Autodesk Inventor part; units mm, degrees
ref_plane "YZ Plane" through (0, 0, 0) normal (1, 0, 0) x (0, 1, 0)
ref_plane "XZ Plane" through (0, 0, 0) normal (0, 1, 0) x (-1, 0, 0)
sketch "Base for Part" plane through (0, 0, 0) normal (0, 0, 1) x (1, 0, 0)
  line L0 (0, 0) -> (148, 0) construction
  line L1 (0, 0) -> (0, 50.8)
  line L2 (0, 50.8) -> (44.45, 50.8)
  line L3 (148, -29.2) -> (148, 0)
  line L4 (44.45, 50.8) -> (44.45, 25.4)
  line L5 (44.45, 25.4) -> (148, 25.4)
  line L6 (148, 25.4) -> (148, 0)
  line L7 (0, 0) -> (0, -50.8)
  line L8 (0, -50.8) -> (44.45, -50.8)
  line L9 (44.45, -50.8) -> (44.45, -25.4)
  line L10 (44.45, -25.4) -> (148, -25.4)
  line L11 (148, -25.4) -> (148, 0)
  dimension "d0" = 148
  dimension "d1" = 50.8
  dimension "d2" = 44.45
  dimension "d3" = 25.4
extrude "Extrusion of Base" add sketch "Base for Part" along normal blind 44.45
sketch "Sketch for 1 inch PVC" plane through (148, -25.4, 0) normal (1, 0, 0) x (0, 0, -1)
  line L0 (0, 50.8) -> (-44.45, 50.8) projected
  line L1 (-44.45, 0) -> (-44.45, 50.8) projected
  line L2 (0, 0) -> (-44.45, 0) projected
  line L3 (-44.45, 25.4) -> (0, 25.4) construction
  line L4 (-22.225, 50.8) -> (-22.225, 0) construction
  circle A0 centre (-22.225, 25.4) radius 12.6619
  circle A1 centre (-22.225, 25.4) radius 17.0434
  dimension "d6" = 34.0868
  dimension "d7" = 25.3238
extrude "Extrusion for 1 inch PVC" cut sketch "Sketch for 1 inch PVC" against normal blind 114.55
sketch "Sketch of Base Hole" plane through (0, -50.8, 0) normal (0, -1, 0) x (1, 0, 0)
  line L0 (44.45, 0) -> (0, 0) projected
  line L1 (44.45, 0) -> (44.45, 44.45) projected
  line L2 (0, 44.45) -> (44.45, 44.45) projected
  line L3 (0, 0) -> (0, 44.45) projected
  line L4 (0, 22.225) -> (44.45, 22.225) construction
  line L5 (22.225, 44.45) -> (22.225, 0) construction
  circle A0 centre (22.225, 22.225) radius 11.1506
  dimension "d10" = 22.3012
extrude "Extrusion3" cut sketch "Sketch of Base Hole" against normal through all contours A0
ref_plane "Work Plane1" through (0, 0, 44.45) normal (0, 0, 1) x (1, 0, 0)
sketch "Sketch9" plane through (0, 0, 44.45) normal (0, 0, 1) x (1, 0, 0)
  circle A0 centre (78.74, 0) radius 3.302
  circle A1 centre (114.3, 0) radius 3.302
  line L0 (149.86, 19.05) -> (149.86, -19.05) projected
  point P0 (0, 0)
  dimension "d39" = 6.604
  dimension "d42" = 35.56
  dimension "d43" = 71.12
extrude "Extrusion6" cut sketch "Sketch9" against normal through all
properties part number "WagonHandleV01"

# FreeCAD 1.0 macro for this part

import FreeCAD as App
import Part
import Sketcher

V = App.Vector
Q = App.Units.Quantity

doc = App.newDocument("Part")
body = doc.addObject("PartDesign::Body", "Body")

# Sketch on XY plane
sketch1 = body.newObject("Sketcher::SketchObject", "Sketch")
sketch1.AttachmentSupport = (doc.getObject("XY_Plane"), [""])
sketch1.MapMode = "FlatFace"
sketch1.addGeometry([
    Part.LineSegment(V(0, 51, 0), V(0, -51, 0)),  # 0
    Part.LineSegment(V(0, -51, 0), V(44, -51, 0)),  # 1
    Part.LineSegment(V(44, -51, 0), V(44, -25, 0)),  # 2
    Part.LineSegment(V(44, -25, 0), V(148, -25, 0)),  # 3
    Part.LineSegment(V(148, -25, 0), V(148, 25, 0)),  # 4
    Part.LineSegment(V(148, 25, 0), V(44, 25, 0)),  # 5
    Part.LineSegment(V(44, 25, 0), V(44, 51, 0)),  # 6
    Part.LineSegment(V(44, 51, 0), V(0, 51, 0)),  # 7
], False)
sketch1.addConstraint([
    Sketcher.Constraint("Coincident", 0, 2, 1, 1),
    Sketcher.Constraint("Coincident", 1, 2, 2, 1),
    Sketcher.Constraint("Coincident", 2, 2, 3, 1),
    Sketcher.Constraint("Coincident", 3, 2, 4, 1),
    Sketcher.Constraint("Coincident", 4, 2, 5, 1),
    Sketcher.Constraint("Coincident", 5, 2, 6, 1),
    Sketcher.Constraint("Coincident", 6, 2, 7, 1),
    Sketcher.Constraint("Coincident", 7, 2, 0, 1),
    Sketcher.Constraint("Vertical", 0),
    Sketcher.Constraint("Horizontal", 1),
    Sketcher.Constraint("Vertical", 2),
    Sketcher.Constraint("Horizontal", 3),
    Sketcher.Constraint("Vertical", 4),
    Sketcher.Constraint("Horizontal", 5),
    Sketcher.Constraint("Vertical", 6),
    Sketcher.Constraint("Horizontal", 7),
    Sketcher.Constraint("Symmetric", 0, 2, 7, 2, -1, 1),
    Sketcher.Constraint("Symmetric", 2, 2, 5, 2, -1),
    Sketcher.Constraint("DistanceY", 2, 1, 2, 2, Q("1 in")),
    Sketcher.Constraint("DistanceY", 4, 1, 4, 2, Q("2 in")),
    Sketcher.Constraint("DistanceX", 1, 1, 1, 2, Q("1.75 in")),
    Sketcher.Constraint("DistanceX", -1, 1, 3, 2, 148.0),
])
pad1 = body.newObject("PartDesign::Pad", "Pad")
pad1.Profile = sketch1
pad1.Length = Q("1.75 in")

# Sketch on YZ plane
sketch2 = body.newObject("Sketcher::SketchObject", "Sketch001")
sketch2.AttachmentSupport = (doc.getObject("YZ_Plane"), [""])
sketch2.MapMode = "FlatFace"
sketch2.AttachmentOffset = App.Placement(V(0, 0, 148), App.Rotation())
sketch2.addGeometry([
    Part.Circle(V(0, 22, 0), V(0, 0, 1), 17),
    Part.Circle(V(0, 22, 0), V(0, 0, 1), 13),
], False)
sketch2.addConstraint([
    Sketcher.Constraint("Coincident", 1, 3, 0, 3),
    Sketcher.Constraint("PointOnObject", 0, 3, -2),
    Sketcher.Constraint("Diameter", 0, Q("1.342 in")),
    Sketcher.Constraint("Diameter", 1, Q("0.997 in")),
    Sketcher.Constraint("DistanceY", -1, 1, 0, 3, Q("0.875 in")),
])
pocket1 = body.newObject("PartDesign::Pocket", "Pocket")
pocket1.Profile = sketch2
pocket1.Length = 114.55

# Sketch on XZ plane
sketch3 = body.newObject("Sketcher::SketchObject", "Sketch002")
sketch3.AttachmentSupport = (doc.getObject("XZ_Plane"), [""])
sketch3.MapMode = "FlatFace"
sketch3.AttachmentOffset = App.Placement(V(0, 0, 2 * 25.4), App.Rotation())
sketch3.addGeometry(Part.Circle(V(22, 22, 0), V(0, 0, 1), 11), False)
sketch3.addConstraint([
    Sketcher.Constraint("Diameter", 0, Q("0.878 in")),
    Sketcher.Constraint("DistanceX", -1, 1, 0, 3, Q("0.875 in")),
    Sketcher.Constraint("DistanceY", -1, 1, 0, 3, Q("0.875 in")),
])
pocket2 = body.newObject("PartDesign::Pocket", "Pocket001")
pocket2.Profile = sketch3
pocket2.Type = "ThroughAll"

# Sketch on XY plane
sketch4 = body.newObject("Sketcher::SketchObject", "Sketch003")
sketch4.AttachmentSupport = (doc.getObject("XY_Plane"), [""])
sketch4.MapMode = "FlatFace"
sketch4.AttachmentOffset = App.Placement(V(0, 0, 1.75 * 25.4), App.Rotation())
sketch4.addGeometry([
    Part.Circle(V(78.7, 0, 0), V(0, 0, 1), 3.3),
    Part.Circle(V(114.3, 0, 0), V(0, 0, 1), 3.3),
], False)
sketch4.addConstraint([
    Sketcher.Constraint("Equal", 0, 1),
    Sketcher.Constraint("PointOnObject", 0, 3, -1),
    Sketcher.Constraint("PointOnObject", 1, 3, -1),
    Sketcher.Constraint("Diameter", 0, Q("0.26 in")),
    Sketcher.Constraint("DistanceX", 0, 3, 1, 3, Q("1.4 in")),
    Sketcher.Constraint("DistanceX", -1, 1, 0, 3, Q("3.1 in")),
])
pocket3 = body.newObject("PartDesign::Pocket", "Pocket002")
pocket3.Profile = sketch4
pocket3.Type = "ThroughAll"

doc.recompute()
